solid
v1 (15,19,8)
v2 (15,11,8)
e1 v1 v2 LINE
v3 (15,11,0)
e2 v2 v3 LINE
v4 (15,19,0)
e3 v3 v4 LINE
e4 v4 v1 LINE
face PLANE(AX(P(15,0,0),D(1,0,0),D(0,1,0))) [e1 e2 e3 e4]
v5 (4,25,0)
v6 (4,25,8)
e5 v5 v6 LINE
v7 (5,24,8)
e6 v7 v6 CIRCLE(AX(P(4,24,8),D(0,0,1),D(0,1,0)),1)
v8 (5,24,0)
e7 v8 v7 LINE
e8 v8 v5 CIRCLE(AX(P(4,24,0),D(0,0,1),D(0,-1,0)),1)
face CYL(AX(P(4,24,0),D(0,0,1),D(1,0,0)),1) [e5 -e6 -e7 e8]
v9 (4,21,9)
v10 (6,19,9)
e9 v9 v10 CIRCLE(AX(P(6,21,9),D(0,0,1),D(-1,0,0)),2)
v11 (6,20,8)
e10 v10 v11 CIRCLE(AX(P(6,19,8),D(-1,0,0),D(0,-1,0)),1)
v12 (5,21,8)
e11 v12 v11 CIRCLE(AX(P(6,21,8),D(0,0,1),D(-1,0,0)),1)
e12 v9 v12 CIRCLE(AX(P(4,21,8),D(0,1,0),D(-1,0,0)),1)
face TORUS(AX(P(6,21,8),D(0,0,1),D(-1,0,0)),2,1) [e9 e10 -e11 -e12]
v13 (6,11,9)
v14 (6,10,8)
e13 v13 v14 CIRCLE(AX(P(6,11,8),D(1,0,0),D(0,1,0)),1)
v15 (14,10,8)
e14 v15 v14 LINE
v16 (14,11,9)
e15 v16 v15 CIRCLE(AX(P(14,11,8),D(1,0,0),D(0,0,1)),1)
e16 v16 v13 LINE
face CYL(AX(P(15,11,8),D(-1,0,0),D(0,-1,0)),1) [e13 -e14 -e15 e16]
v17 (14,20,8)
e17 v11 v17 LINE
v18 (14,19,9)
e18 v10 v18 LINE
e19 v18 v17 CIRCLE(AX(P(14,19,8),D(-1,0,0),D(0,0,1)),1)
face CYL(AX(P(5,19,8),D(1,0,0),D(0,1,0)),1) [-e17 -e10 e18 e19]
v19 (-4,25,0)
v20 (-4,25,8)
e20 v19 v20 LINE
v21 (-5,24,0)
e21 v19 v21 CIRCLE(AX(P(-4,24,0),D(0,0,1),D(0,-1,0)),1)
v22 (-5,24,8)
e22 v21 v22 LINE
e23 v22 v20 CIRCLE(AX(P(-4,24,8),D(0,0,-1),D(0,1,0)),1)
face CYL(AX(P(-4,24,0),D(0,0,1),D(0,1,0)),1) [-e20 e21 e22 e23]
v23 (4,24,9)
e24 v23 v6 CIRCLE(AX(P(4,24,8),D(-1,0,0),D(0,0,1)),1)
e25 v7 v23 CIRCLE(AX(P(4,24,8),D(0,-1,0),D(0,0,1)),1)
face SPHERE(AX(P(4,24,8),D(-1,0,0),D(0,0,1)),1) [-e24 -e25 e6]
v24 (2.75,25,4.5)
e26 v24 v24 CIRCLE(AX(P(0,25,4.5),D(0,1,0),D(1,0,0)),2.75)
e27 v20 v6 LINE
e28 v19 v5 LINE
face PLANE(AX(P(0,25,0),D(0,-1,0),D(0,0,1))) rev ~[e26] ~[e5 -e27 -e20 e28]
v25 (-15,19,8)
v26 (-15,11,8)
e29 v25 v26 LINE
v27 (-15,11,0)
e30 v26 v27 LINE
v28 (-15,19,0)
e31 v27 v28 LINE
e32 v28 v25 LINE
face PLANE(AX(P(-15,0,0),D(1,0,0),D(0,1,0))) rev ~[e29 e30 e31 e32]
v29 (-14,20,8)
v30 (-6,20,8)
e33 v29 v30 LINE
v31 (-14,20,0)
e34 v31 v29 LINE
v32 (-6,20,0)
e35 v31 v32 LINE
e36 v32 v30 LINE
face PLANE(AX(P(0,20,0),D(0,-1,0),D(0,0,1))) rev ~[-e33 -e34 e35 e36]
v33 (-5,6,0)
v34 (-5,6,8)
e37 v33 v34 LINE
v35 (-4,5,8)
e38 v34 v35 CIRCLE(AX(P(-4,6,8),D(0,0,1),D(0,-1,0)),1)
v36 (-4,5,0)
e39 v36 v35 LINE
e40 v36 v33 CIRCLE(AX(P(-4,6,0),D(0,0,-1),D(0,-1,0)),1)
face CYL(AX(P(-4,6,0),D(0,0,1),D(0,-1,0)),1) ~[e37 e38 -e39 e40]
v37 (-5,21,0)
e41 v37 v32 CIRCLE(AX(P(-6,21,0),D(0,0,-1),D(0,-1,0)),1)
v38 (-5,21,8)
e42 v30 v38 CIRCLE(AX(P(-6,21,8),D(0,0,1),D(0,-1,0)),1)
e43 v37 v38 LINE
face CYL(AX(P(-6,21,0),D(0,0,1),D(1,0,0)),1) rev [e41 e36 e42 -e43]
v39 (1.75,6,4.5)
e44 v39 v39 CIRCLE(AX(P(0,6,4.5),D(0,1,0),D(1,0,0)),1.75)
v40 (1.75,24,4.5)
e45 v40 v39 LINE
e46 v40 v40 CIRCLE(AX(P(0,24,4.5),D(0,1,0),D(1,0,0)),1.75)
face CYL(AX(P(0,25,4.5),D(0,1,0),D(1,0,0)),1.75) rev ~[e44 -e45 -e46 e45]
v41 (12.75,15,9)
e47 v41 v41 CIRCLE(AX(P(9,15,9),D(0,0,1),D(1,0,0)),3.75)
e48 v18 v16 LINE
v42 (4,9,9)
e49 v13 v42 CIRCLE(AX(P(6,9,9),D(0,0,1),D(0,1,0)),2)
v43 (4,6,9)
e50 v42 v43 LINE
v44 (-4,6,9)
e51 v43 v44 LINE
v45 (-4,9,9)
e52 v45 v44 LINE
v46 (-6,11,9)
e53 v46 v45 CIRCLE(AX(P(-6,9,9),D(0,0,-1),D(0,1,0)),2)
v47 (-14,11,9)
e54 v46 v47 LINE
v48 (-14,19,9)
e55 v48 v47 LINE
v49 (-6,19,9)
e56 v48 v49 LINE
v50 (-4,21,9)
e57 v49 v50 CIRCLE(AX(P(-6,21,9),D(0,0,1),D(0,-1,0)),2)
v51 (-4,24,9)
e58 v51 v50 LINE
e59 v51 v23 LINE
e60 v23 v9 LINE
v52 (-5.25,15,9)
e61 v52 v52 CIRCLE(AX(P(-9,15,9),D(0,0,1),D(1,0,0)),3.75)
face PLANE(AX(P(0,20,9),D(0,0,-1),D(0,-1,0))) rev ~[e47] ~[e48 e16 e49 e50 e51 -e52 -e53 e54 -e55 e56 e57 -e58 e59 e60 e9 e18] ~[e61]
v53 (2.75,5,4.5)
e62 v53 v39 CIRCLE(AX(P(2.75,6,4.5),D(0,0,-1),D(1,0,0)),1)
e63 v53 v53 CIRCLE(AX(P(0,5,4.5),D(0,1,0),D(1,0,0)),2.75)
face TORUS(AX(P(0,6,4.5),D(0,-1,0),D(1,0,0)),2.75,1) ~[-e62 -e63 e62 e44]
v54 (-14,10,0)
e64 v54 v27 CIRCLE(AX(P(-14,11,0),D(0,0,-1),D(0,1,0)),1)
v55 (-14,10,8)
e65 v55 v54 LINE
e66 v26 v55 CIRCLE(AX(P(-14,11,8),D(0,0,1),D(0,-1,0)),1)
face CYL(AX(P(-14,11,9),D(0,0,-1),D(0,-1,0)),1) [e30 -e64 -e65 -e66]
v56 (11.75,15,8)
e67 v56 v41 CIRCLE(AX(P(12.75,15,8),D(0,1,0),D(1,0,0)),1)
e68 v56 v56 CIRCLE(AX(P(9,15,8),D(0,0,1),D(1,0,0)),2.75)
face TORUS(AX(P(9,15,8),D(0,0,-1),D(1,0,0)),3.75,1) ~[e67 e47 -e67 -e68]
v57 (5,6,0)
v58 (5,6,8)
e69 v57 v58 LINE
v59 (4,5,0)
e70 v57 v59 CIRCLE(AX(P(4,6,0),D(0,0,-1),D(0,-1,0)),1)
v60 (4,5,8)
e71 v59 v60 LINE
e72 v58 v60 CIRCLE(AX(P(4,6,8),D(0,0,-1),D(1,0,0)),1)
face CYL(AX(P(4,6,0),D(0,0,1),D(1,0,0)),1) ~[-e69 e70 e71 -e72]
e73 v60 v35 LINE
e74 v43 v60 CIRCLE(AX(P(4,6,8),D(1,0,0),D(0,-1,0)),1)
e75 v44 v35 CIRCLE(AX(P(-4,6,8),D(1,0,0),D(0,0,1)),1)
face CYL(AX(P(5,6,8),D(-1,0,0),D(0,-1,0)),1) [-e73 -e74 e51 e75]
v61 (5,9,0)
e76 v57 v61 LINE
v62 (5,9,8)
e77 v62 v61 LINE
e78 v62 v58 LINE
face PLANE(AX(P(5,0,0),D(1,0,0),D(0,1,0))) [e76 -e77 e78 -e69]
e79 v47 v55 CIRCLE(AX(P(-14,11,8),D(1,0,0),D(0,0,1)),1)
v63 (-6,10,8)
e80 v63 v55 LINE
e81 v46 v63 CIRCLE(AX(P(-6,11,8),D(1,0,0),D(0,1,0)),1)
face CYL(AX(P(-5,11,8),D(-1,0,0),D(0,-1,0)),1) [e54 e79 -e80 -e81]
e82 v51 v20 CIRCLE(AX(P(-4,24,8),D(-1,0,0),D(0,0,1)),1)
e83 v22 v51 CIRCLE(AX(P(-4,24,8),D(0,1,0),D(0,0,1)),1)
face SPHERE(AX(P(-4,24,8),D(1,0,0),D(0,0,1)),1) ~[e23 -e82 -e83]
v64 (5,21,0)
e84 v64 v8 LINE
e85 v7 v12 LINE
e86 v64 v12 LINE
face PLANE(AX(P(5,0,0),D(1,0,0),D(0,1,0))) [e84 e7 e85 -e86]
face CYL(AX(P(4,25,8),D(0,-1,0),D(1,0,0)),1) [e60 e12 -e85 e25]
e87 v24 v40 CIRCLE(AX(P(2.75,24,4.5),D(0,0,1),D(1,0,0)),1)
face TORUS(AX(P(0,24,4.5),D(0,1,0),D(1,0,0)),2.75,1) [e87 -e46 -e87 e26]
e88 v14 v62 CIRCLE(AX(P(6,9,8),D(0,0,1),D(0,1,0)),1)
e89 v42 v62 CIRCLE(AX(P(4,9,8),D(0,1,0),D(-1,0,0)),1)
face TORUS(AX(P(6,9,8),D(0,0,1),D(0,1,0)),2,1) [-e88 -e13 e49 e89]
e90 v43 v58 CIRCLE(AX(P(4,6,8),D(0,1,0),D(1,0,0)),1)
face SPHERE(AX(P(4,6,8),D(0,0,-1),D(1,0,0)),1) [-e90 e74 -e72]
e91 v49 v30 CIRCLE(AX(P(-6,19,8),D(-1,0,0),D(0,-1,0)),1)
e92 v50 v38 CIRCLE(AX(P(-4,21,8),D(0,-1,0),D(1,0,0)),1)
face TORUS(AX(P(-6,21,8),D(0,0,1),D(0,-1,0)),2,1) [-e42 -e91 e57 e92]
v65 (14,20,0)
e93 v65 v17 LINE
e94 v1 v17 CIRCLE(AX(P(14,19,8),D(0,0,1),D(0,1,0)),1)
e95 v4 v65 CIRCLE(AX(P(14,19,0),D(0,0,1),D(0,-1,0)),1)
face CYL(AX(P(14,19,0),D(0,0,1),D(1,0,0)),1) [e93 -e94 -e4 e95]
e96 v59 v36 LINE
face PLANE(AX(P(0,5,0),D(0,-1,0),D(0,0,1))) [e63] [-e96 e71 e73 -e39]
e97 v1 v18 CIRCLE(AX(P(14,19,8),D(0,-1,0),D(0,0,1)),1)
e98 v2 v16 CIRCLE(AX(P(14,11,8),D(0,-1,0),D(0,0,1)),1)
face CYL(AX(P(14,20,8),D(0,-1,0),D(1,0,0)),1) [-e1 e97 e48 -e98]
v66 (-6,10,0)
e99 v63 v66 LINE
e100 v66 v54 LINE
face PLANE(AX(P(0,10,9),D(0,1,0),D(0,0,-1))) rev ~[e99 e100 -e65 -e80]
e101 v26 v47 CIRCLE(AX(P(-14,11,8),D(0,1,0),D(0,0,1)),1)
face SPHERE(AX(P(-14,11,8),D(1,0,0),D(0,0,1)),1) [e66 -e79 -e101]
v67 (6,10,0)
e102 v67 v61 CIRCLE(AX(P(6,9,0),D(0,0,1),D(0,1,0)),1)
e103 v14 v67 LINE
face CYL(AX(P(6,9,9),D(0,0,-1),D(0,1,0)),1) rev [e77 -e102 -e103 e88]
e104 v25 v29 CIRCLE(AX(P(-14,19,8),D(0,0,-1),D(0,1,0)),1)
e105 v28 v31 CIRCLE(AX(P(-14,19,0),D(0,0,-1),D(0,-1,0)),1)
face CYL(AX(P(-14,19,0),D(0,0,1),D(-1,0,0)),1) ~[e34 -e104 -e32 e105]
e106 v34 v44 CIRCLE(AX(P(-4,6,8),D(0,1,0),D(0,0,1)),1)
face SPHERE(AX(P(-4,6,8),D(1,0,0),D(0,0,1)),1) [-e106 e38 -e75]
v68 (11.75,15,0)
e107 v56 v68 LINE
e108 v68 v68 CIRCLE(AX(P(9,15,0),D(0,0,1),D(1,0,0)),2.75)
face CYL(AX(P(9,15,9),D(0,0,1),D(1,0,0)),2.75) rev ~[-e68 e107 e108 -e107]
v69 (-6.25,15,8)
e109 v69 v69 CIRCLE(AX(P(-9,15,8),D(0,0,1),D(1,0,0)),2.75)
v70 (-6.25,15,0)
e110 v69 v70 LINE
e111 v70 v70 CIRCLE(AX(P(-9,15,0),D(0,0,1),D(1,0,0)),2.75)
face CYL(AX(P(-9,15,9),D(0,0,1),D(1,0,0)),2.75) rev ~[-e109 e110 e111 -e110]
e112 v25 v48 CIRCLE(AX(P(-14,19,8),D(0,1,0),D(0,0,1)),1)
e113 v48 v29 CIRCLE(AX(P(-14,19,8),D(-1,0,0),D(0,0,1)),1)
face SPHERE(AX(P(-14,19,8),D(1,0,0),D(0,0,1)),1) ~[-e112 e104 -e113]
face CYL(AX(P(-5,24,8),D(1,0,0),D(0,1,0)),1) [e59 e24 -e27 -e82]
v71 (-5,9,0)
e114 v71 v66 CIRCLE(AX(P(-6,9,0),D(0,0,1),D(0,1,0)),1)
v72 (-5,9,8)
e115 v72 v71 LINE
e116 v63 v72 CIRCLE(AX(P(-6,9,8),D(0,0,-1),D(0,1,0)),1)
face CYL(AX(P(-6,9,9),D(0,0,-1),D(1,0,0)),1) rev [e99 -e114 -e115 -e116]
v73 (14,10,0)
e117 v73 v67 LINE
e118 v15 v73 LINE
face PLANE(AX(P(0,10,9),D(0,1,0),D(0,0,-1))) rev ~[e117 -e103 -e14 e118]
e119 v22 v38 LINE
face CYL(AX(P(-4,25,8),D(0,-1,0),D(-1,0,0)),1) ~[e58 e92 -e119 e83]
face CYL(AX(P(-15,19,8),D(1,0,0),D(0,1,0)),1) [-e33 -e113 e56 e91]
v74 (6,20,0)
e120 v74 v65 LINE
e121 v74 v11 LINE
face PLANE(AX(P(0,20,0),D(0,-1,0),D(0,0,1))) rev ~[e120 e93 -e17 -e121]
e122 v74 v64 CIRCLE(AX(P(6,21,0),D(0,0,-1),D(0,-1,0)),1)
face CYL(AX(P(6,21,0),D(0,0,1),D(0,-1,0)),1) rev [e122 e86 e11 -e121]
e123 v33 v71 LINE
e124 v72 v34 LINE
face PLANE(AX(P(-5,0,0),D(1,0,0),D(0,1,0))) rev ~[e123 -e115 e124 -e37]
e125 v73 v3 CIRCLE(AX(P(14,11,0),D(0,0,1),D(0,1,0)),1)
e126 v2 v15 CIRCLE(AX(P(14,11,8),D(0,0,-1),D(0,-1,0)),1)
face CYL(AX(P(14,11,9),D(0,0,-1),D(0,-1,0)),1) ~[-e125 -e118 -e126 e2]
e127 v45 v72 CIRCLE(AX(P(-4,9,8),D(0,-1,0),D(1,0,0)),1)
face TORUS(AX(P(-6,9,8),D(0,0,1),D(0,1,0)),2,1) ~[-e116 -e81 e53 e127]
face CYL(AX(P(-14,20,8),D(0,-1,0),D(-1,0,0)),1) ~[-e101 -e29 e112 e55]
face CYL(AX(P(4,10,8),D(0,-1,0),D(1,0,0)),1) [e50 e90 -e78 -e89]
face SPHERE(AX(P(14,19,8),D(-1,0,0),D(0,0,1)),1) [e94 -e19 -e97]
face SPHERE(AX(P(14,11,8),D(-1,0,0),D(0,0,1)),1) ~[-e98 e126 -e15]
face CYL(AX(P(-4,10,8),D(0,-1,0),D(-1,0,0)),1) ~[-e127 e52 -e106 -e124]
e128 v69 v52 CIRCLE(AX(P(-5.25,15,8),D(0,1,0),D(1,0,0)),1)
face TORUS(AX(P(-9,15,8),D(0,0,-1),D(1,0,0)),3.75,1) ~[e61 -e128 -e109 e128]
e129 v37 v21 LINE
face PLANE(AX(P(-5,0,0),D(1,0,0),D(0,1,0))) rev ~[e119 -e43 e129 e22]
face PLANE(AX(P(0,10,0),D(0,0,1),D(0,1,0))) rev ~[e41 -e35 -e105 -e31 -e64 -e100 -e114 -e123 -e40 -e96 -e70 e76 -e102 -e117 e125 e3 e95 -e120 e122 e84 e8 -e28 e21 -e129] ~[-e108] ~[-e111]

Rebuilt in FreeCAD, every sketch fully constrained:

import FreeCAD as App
import Part
import Sketcher
Q = App.Units.Quantity


def edges_at(feature, points):
    """Names of the edges that pass closest to the given points."""
    edges = feature.Shape.Edges
    near = lambda p: min(range(len(edges)), key=lambda i: edges[i].distToShape(Part.Vertex(*p))[0])
    return sorted({f"Edge{near(p) + 1}" for p in points})


def add_polygon(sketch, points):
    """Adds a closed chain of lines whose ends are joined by coincident constraints."""
    first, n = sketch.GeometryCount, len(points)
    for a, b in zip(points, points[1:] + points[:1]):
        sketch.addGeometry(Part.LineSegment(App.Vector(*a, 0), App.Vector(*b, 0)), False)
    for i in range(n):
        sketch.addConstraint(Sketcher.Constraint("Coincident", first + i, 2, first + (i + 1) % n, 1))

doc = App.newDocument("Part")
body = doc.addObject("PartDesign::Body", "Body")
body.AllowCompound = True

# Sketch on YZ plane
sketch1 = body.newObject("Sketcher::SketchObject", "Sketch")
sketch1.AttachmentSupport = (doc.getObject("YZ_Plane"), [""])
sketch1.MapMode = "FlatFace"
add_polygon(sketch1, [(20, 0), (25, 0), (25, 9), (20, 9)])  # lines 0-3
add_polygon(sketch1, [(5, 0), (10, 0), (10, 9), (5, 9)])  # lines 4-7
sketch1.addConstraint(Sketcher.Constraint("Horizontal", 0))
sketch1.addConstraint(Sketcher.Constraint("Vertical", 1))
sketch1.addConstraint(Sketcher.Constraint("Horizontal", 2))
sketch1.addConstraint(Sketcher.Constraint("Vertical", 3))
sketch1.addConstraint(Sketcher.Constraint("Horizontal", 4))
sketch1.addConstraint(Sketcher.Constraint("Vertical", 5))
sketch1.addConstraint(Sketcher.Constraint("Horizontal", 6))
sketch1.addConstraint(Sketcher.Constraint("Vertical", 7))
sketch1.addConstraint(Sketcher.Constraint("PointOnObject", 0, 2, -1))
sketch1.addConstraint(Sketcher.Constraint("PointOnObject", 4, 2, -1))
sketch1.addConstraint(Sketcher.Constraint("Horizontal", 2, 2, 5, 2))
sketch1.addConstraint(Sketcher.Constraint("Equal", 2, 4))
sketch1.addConstraint(Sketcher.Constraint("DistanceX", 0, 1, 0, 2, Q("5 mm")))
sketch1.addConstraint(Sketcher.Constraint("DistanceY", 1, 1, 1, 2, Q("9 mm")))
sketch1.addConstraint(Sketcher.Constraint("DistanceX", -1, 1, 0, 2, Q("25 mm")))
sketch1.addConstraint(Sketcher.Constraint("DistanceX", -1, 1, 4, 2, Q("10 mm")))
pad1 = body.newObject("PartDesign::Pad", "Pad")
pad1.Profile = sketch1
pad1.Length = 10
pad1.Midplane = True

# Sketch on YZ plane
sketch2 = body.newObject("Sketcher::SketchObject", "Sketch001")
sketch2.AttachmentSupport = (doc.getObject("YZ_Plane"), [""])
sketch2.MapMode = "FlatFace"
add_polygon(sketch2, [(10, 0), (20, 0), (20, 9), (10, 9)])  # lines 0-3
sketch2.addConstraint(Sketcher.Constraint("Horizontal", 0))
sketch2.addConstraint(Sketcher.Constraint("Vertical", 1))
sketch2.addConstraint(Sketcher.Constraint("Horizontal", 2))
sketch2.addConstraint(Sketcher.Constraint("Vertical", 3))
sketch2.addConstraint(Sketcher.Constraint("PointOnObject", 0, 2, -1))
sketch2.addConstraint(Sketcher.Constraint("DistanceX", 0, 1, 0, 2, Q("10 mm")))
sketch2.addConstraint(Sketcher.Constraint("DistanceY", 1, 1, 1, 2, Q("9 mm")))
sketch2.addConstraint(Sketcher.Constraint("DistanceX", -1, 1, 2, 2, Q("10 mm")))
pad2 = body.newObject("PartDesign::Pad", "Pad001")
pad2.Profile = sketch2
pad2.Length = 30
pad2.Midplane = True

# Sketch on XY plane
sketch3 = body.newObject("Sketcher::SketchObject", "Sketch002")
sketch3.AttachmentSupport = (doc.getObject("XY_Plane"), [""])
sketch3.MapMode = "FlatFace"
sketch3.AttachmentOffset = App.Placement(App.Vector(0, 0, 9), App.Rotation())
sketch3.addGeometry(Part.Circle(App.Vector(-9, 15, 0), App.Vector(0, 0, 1), 2.75), False)
sketch3.addGeometry(Part.Circle(App.Vector(9, 15, 0), App.Vector(0, 0, 1), 2.75), False)
sketch3.addConstraint(Sketcher.Constraint("Equal", 0, 1))
sketch3.addConstraint(Sketcher.Constraint("Symmetric", 0, 3, 1, 3, -2))
sketch3.addConstraint(Sketcher.Constraint("Diameter", 0, Q("5.5 mm")))
sketch3.addConstraint(Sketcher.Constraint("DistanceX", 0, 3, -1, 1, Q("9 mm")))
sketch3.addConstraint(Sketcher.Constraint("DistanceY", -1, 1, 0, 3, Q("15 mm")))
pocket1 = body.newObject("PartDesign::Pocket", "Pocket")
pocket1.Profile = sketch3
pocket1.Type = "ThroughAll"

# Sketch on XZ plane
sketch4 = body.newObject("Sketcher::SketchObject", "Sketch003")
sketch4.AttachmentSupport = (doc.getObject("XZ_Plane"), [""])
sketch4.MapMode = "FlatFace"
sketch4.AttachmentOffset = App.Placement(App.Vector(0, 0, -25), App.Rotation())
sketch4.addGeometry(Part.Circle(App.Vector(0, 4.5, 0), App.Vector(0, 0, 1), 1.75), False)
sketch4.addConstraint(Sketcher.Constraint("PointOnObject", 0, 3, -2))
sketch4.addConstraint(Sketcher.Constraint("Diameter", 0, Q("3.5 mm")))
sketch4.addConstraint(Sketcher.Constraint("DistanceY", -1, 1, 0, 3, Q("4.5 mm")))
pocket2 = body.newObject("PartDesign::Pocket", "Pocket001")
pocket2.Profile = sketch4
pocket2.Type = "ThroughAll"
pocket2.Reversed = True
doc.recompute()

fillet = body.newObject("PartDesign::Fillet", "Fillet")
fillet.Base = (pocket2, edges_at(pocket2, [
    (0, 25, 9),
    (-10, 20, 9),
    (-5, 22.5, 9),
    (5, 22.5, 9),
    (10, 20, 9),
    (5, 25, 4.5),
    (5, 20, 4.5),
    (-5, 25, 4.5),
    (-5, 20, 4.5),
    (10, 10, 9),
    (15, 15, 9),
    (15, 20, 4.5),
    (15, 10, 4.5),
    (5, 5, 4.5),
    (5, 7.5, 9),
    (5, 10, 4.5),
    (0, 5, 9),
    (-5, 7.5, 9),
    (-5, 10, 4.5),
    (-10, 10, 9),
    (-15, 15, 9),
    (-5, 5, 4.5),
    (-15, 10, 4.5),
    (-15, 20, 4.5),
    (6.25, 15, 9),
    (-11.75, 15, 9),
    (-1.75, 5, 4.5),
    (-1.75, 25, 4.5),
]))
fillet.Radius = 1

doc.recompute()
